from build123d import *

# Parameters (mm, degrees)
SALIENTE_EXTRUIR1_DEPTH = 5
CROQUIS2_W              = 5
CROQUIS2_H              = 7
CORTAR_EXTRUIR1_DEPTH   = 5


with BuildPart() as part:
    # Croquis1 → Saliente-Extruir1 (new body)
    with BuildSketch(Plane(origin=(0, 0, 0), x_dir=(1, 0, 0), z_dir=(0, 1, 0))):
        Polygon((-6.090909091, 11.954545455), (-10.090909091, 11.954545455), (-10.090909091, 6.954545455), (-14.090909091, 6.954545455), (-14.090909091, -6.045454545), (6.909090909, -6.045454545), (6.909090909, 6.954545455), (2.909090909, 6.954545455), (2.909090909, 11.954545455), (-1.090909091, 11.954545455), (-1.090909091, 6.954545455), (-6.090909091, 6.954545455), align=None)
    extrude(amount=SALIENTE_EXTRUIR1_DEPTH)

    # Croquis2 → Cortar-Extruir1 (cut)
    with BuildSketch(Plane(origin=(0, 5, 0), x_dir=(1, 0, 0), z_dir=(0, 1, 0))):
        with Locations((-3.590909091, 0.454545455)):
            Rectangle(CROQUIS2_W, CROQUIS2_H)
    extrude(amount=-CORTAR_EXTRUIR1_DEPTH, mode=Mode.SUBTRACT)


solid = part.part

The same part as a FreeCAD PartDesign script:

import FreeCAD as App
import Part
import Sketcher

V = App.Vector


def add_polygon(sketch, points):
    """Adds a closed chain of lines whose ends are joined by coincident constraints."""
    first, n = sketch.GeometryCount, len(points)
    for a, b in zip(points, points[1:] + points[:1]):
        sketch.addGeometry(Part.LineSegment(App.Vector(*a, 0), App.Vector(*b, 0)), False)
    for i in range(n):
        sketch.addConstraint(Sketcher.Constraint("Coincident", first + i, 2, first + (i + 1) % n, 1))

doc = App.newDocument("Part")
params = doc.addObject("Spreadsheet::Sheet", "Params")
for row, (alias, value) in enumerate([
    ("sketch1_width", "4 mm"),
    ("sketch1_width2", "21 mm"),
    ("sketch1_height", "13 mm"),
    ("pad1_length", "5 mm"),
    ("sketch2_width", "5 mm"),
    ("sketch2_height", "7 mm"),
    ("pocket1_length", "5 mm"),
], start=1):
    params.set(f"A{row}", alias)
    params.set(f"B{row}", "=" + value)
    params.setAlias(f"B{row}", alias)

body = doc.addObject("PartDesign::Body", "Body")

sketch1 = doc.addObject("Sketcher::SketchObject", "Sketch")
body.addObject(sketch1)
sketch1.AttachmentSupport = (doc.XZ_Plane, [""])
sketch1.MapMode = "FlatFace"
add_polygon(sketch1, [(-6.1, -12), (-10.1, -12), (-10.1, -7), (-14.1, -7), (-14.1, 6), (6.9, 6), (6.9, -7), (2.9, -7), (2.9, -12), (-1.1, -12), (-1.1, -7), (-6.1, -7)])
sketch1.addConstraint(Sketcher.Constraint("Horizontal", 0))
sketch1.addConstraint(Sketcher.Constraint("Vertical", 1))
sketch1.addConstraint(Sketcher.Constraint("Horizontal", 2))
sketch1.addConstraint(Sketcher.Constraint("Vertical", 3))
sketch1.addConstraint(Sketcher.Constraint("Horizontal", 4))
sketch1.addConstraint(Sketcher.Constraint("Vertical", 5))
sketch1.addConstraint(Sketcher.Constraint("Horizontal", 6))
sketch1.addConstraint(Sketcher.Constraint("Vertical", 7))
sketch1.addConstraint(Sketcher.Constraint("Horizontal", 8))
sketch1.addConstraint(Sketcher.Constraint("Vertical", 9))
sketch1.addConstraint(Sketcher.Constraint("Horizontal", 10))
sketch1.addConstraint(Sketcher.Constraint("Vertical", 11))
sketch1.addConstraint(Sketcher.Constraint("Horizontal", 2, 2, 5, 2))
sketch1.addConstraint(Sketcher.Constraint("Horizontal", 0, 2, 7, 2))
sketch1.addConstraint(Sketcher.Constraint("Horizontal", 6, 2, 9, 2))
sketch1.addConstraint(Sketcher.Constraint("Equal", 0, 2))
sketch1.addConstraint(Sketcher.Constraint("Equal", 2, 6))
sketch1.addConstraint(Sketcher.Constraint("Equal", 6, 8))
sketch1.addConstraint(Sketcher.Constraint("Equal", 10, 1))
sketch1.addConstraint(Sketcher.Constraint("DistanceX", 0, 2, 0, 1, 4.0))
sketch1.addConstraint(Sketcher.Constraint("DistanceX", 4, 1, 4, 2, 21.0))
sketch1.addConstraint(Sketcher.Constraint("DistanceY", 3, 1, 3, 2, 13.0))
sketch1.addConstraint(Sketcher.Constraint("DistanceX", 0, 2, -1, 1, 10.090909))
sketch1.addConstraint(Sketcher.Constraint("DistanceY", 0, 2, -1, 1, 11.954545))
sketch1.setExpression("Constraints[31]", "Params.sketch1_width")
sketch1.setExpression("Constraints[32]", "Params.sketch1_width2")
sketch1.setExpression("Constraints[33]", "Params.sketch1_height")
pad1 = doc.addObject("PartDesign::Pad", "Pad")
body.addObject(pad1)
pad1.Profile = sketch1
pad1.setExpression("Length", "Params.pad1_length")
pad1.Reversed = True

sketch2 = doc.addObject("Sketcher::SketchObject", "Sketch001")
body.addObject(sketch2)
sketch2.AttachmentSupport = (doc.XZ_Plane, [""])
sketch2.MapMode = "FlatFace"
sketch2.AttachmentOffset = App.Placement(V(0, 0, -5), App.Rotation())
add_polygon(sketch2, [(-6, -4), (-6, 3), (-1, 3), (-1, -4)])
sketch2.addConstraint(Sketcher.Constraint("Vertical", 0))
sketch2.addConstraint(Sketcher.Constraint("Horizontal", 1))
sketch2.addConstraint(Sketcher.Constraint("Vertical", 2))
sketch2.addConstraint(Sketcher.Constraint("Horizontal", 3))
sketch2.addConstraint(Sketcher.Constraint("DistanceX", 1, 1, 1, 2, 5.0))
sketch2.addConstraint(Sketcher.Constraint("DistanceY", 0, 1, 0, 2, 7.0))
sketch2.addConstraint(Sketcher.Constraint("DistanceX", 0, 2, -1, 1, 6.090909))
sketch2.addConstraint(Sketcher.Constraint("DistanceY", -1, 1, 0, 2, 3.045455))
sketch2.setExpression("Constraints[8]", "Params.sketch2_width")
sketch2.setExpression("Constraints[9]", "Params.sketch2_height")
pocket1 = doc.addObject("PartDesign::Pocket", "Pocket")
body.addObject(pocket1)
pocket1.Profile = sketch2
pocket1.setExpression("Length", "Params.pocket1_length")
pocket1.Reversed = True

doc.recompute()
